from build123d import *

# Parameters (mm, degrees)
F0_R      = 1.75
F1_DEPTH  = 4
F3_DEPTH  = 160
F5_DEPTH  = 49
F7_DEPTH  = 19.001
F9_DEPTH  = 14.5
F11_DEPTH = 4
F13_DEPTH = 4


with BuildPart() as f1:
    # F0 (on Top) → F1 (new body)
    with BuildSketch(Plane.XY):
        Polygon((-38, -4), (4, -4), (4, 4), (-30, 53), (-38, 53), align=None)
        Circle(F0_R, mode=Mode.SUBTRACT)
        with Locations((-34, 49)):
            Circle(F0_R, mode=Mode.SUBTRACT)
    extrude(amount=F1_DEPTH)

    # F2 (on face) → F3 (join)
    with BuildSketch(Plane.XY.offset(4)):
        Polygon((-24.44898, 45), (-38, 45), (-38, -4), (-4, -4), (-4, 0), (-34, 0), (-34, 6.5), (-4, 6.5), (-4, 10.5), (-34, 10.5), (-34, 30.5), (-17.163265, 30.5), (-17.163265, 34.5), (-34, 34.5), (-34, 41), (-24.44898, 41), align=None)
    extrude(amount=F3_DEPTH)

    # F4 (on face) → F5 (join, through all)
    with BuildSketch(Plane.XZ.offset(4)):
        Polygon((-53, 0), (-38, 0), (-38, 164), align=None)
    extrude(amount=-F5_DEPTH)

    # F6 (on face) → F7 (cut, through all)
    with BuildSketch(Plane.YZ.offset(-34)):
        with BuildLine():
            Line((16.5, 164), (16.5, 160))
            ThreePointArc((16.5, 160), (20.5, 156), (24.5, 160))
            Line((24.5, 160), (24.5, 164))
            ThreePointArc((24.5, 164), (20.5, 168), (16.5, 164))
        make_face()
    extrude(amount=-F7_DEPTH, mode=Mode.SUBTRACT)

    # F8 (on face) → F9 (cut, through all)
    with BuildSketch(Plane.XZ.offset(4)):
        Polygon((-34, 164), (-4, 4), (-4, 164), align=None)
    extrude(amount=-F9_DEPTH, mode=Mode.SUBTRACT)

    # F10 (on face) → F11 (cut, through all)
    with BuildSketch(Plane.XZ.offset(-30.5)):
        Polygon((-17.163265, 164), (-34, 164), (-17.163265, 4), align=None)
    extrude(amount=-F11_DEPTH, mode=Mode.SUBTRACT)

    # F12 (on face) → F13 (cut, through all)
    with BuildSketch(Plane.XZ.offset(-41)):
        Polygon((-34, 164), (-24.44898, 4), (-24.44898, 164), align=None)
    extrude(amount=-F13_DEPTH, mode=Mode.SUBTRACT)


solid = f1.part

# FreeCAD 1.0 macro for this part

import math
import FreeCAD as App
import Part
import Sketcher
Q = App.Units.Quantity

doc = App.newDocument("Part")
body = doc.addObject("PartDesign::Body", "Body")

# Sketch on XY plane
sketch1 = body.newObject("Sketcher::SketchObject", "Sketch")
sketch1.AttachmentSupport = (doc.getObject("XY_Plane"), [""])
sketch1.MapMode = "FlatFace"
sketch1.addGeometry([
    Part.LineSegment(App.Vector(-38, -4, 0), App.Vector(4, -4, 0)),  # 0
    Part.LineSegment(App.Vector(4, -4, 0), App.Vector(4, 4, 0)),  # 1
    Part.LineSegment(App.Vector(4, 4, 0), App.Vector(-30, 53, 0)),  # 2
    Part.LineSegment(App.Vector(-30, 53, 0), App.Vector(-38, 53, 0)),  # 3
    Part.LineSegment(App.Vector(-38, 53, 0), App.Vector(-38, -4, 0)),  # 4
    Part.Circle(App.Vector(0, 0, 0), App.Vector(0, 0, 1), 1.8),  # 5
    Part.Circle(App.Vector(-34, 49, 0), App.Vector(0, 0, 1), 1.8),  # 6
], False)
sketch1.addConstraint([
    Sketcher.Constraint("Coincident", 0, 2, 1, 1),
    Sketcher.Constraint("Coincident", 1, 2, 2, 1),
    Sketcher.Constraint("Coincident", 2, 2, 3, 1),
    Sketcher.Constraint("Coincident", 3, 2, 4, 1),
    Sketcher.Constraint("Coincident", 4, 2, 0, 1),
    Sketcher.Constraint("Horizontal", 0),
    Sketcher.Constraint("Vertical", 1),
    Sketcher.Constraint("Horizontal", 3),
    Sketcher.Constraint("Vertical", 4),
    Sketcher.Constraint("Coincident", 5, 3, -1, 1),
    Sketcher.Constraint("Equal", 5, 6),
    Sketcher.Constraint("Equal", 3, 1),
    Sketcher.Constraint("Diameter", 5, Q("3.5 mm")),
    Sketcher.Constraint("DistanceX", 0, 1, 0, 2, Q("42 mm")),
    Sketcher.Constraint("DistanceX", 3, 2, 3, 1, Q("8 mm")),
    Sketcher.Constraint("DistanceY", 4, 2, 4, 1, Q("57 mm")),
    Sketcher.Constraint("DistanceX", 6, 3, -1, 1, Q("34 mm")),
    Sketcher.Constraint("DistanceY", -1, 1, 6, 3, Q("49 mm")),
    Sketcher.Constraint("DistanceX", -1, 1, 0, 2, Q("4 mm")),
    Sketcher.Constraint("DistanceY", 0, 2, -1, 1, Q("4 mm")),
])
pad1 = body.newObject("PartDesign::Pad", "Pad")
pad1.Profile = sketch1
pad1.Length = 4

# Sketch on XY plane
sketch2 = body.newObject("Sketcher::SketchObject", "Sketch001")
sketch2.AttachmentSupport = (doc.getObject("XY_Plane"), [""])
sketch2.MapMode = "FlatFace"
sketch2.AttachmentOffset = App.Placement(App.Vector(0, 0, 4), App.Rotation())
sketch2.addGeometry([
    Part.LineSegment(App.Vector(-24.4, 45, 0), App.Vector(-38, 45, 0)),  # 0
    Part.LineSegment(App.Vector(-38, 45, 0), App.Vector(-38, -4, 0)),  # 1
    Part.LineSegment(App.Vector(-38, -4, 0), App.Vector(-4, -4, 0)),  # 2
    Part.LineSegment(App.Vector(-4, -4, 0), App.Vector(-4, 0, 0)),  # 3
    Part.LineSegment(App.Vector(-4, 0, 0), App.Vector(-34, 0, 0)),  # 4
    Part.LineSegment(App.Vector(-34, 0, 0), App.Vector(-34, 6.5, 0)),  # 5
    Part.LineSegment(App.Vector(-34, 6.5, 0), App.Vector(-4, 6.5, 0)),  # 6
    Part.LineSegment(App.Vector(-4, 6.5, 0), App.Vector(-4, 10.5, 0)),  # 7
    Part.LineSegment(App.Vector(-4, 10.5, 0), App.Vector(-34, 10.5, 0)),  # 8
    Part.LineSegment(App.Vector(-34, 10.5, 0), App.Vector(-34, 30.5, 0)),  # 9
    Part.LineSegment(App.Vector(-34, 30.5, 0), App.Vector(-17.2, 30.5, 0)),  # 10
    Part.LineSegment(App.Vector(-17.2, 30.5, 0), App.Vector(-17.2, 34.5, 0)),  # 11
    Part.LineSegment(App.Vector(-17.2, 34.5, 0), App.Vector(-34, 34.5, 0)),  # 12
    Part.LineSegment(App.Vector(-34, 34.5, 0), App.Vector(-34, 41, 0)),  # 13
    Part.LineSegment(App.Vector(-34, 41, 0), App.Vector(-24.4, 41, 0)),  # 14
    Part.LineSegment(App.Vector(-24.4, 41, 0), App.Vector(-24.4, 45, 0)),  # 15
], False)
sketch2.addConstraint([
    Sketcher.Constraint("Coincident", 0, 2, 1, 1),
    Sketcher.Constraint("Coincident", 1, 2, 2, 1),
    Sketcher.Constraint("Coincident", 2, 2, 3, 1),
    Sketcher.Constraint("Coincident", 3, 2, 4, 1),
    Sketcher.Constraint("Coincident", 4, 2, 5, 1),
    Sketcher.Constraint("Coincident", 5, 2, 6, 1),
    Sketcher.Constraint("Coincident", 6, 2, 7, 1),
    Sketcher.Constraint("Coincident", 7, 2, 8, 1),
    Sketcher.Constraint("Coincident", 8, 2, 9, 1),
    Sketcher.Constraint("Coincident", 9, 2, 10, 1),
    Sketcher.Constraint("Coincident", 10, 2, 11, 1),
    Sketcher.Constraint("Coincident", 11, 2, 12, 1),
    Sketcher.Constraint("Coincident", 12, 2, 13, 1),
    Sketcher.Constraint("Coincident", 13, 2, 14, 1),
    Sketcher.Constraint("Coincident", 14, 2, 15, 1),
    Sketcher.Constraint("Coincident", 15, 2, 0, 1),
    Sketcher.Constraint("Horizontal", 0),
    Sketcher.Constraint("Vertical", 1),
    Sketcher.Constraint("Horizontal", 2),
    Sketcher.Constraint("Vertical", 3),
    Sketcher.Constraint("Horizontal", 4),
    Sketcher.Constraint("Vertical", 5),
    Sketcher.Constraint("Horizontal", 6),
    Sketcher.Constraint("Vertical", 7),
    Sketcher.Constraint("Horizontal", 8),
    Sketcher.Constraint("Vertical", 9),
    Sketcher.Constraint("Horizontal", 10),
    Sketcher.Constraint("Vertical", 11),
    Sketcher.Constraint("Horizontal", 12),
    Sketcher.Constraint("Vertical", 13),
    Sketcher.Constraint("Horizontal", 14),
    Sketcher.Constraint("Vertical", 15),
    Sketcher.Constraint("PointOnObject", 3, 2, -1),
    Sketcher.Constraint("Vertical", 3, 2, 6, 2),
    Sketcher.Constraint("Vertical", 5, 2, 8, 2),
    Sketcher.Constraint("Vertical", 9, 2, 12, 2),
    Sketcher.Constraint("Equal", 3, 7),
    Sketcher.Constraint("Equal", 7, 11),
    Sketcher.Constraint("Equal", 5, 13),
    Sketcher.Constraint("Equal", 11, 15),
    Sketcher.Constraint("DistanceX", 2, 1, 2, 2, Q("34 mm")),
    Sketcher.Constraint("DistanceX", 4, 2, 4, 1, Q("30 mm")),
    Sketcher.Constraint("DistanceY", 1, 2, 1, 1, Q("49 mm")),
    Sketcher.Constraint("DistanceY", 3, 1, 3, 2, Q("4 mm")),
    Sketcher.Constraint("DistanceY", 9, 1, 9, 2, Q("20 mm")),
    Sketcher.Constraint("DistanceX", 0, 2, -1, 1, Q("38 mm")),
    Sketcher.Constraint("DistanceX", 0, 2, 0, 1, Q("13.55102 mm")),
    Sketcher.Constraint("DistanceX", 10, 1, 10, 2, Q("16.836735 mm")),
])
pad2 = body.newObject("PartDesign::Pad", "Pad001")
pad2.Profile = sketch2
pad2.Length = 160

# Sketch on XZ plane
sketch3 = body.newObject("Sketcher::SketchObject", "Sketch002")
sketch3.AttachmentSupport = (doc.getObject("XZ_Plane"), [""])
sketch3.MapMode = "FlatFace"
sketch3.AttachmentOffset = App.Placement(App.Vector(0, 0, 4), App.Rotation())
sketch3.addGeometry([
    Part.LineSegment(App.Vector(-53, 0, 0), App.Vector(-38, 0, 0)),
    Part.LineSegment(App.Vector(-38, 0, 0), App.Vector(-38, 164, 0)),
    Part.LineSegment(App.Vector(-38, 164, 0), App.Vector(-53, 0, 0)),
], False)
sketch3.addConstraint([
    Sketcher.Constraint("Coincident", 0, 2, 1, 1),
    Sketcher.Constraint("Coincident", 1, 2, 2, 1),
    Sketcher.Constraint("Coincident", 2, 2, 0, 1),
    Sketcher.Constraint("Horizontal", 0),
    Sketcher.Constraint("Vertical", 1),
    Sketcher.Constraint("PointOnObject", 0, 2, -1),
    Sketcher.Constraint("DistanceX", 0, 1, 0, 2, Q("15 mm")),
    Sketcher.Constraint("DistanceY", 1, 1, 1, 2, Q("164 mm")),
    Sketcher.Constraint("DistanceX", 0, 2, -1, 1, Q("38 mm")),
])
pad3 = body.newObject("PartDesign::Pad", "Pad002")
pad3.Profile = sketch3
pad3.Length = 49
pad3.Reversed = True

# Sketch on YZ plane
sketch4 = body.newObject("Sketcher::SketchObject", "Sketch003")
sketch4.AttachmentSupport = (doc.getObject("YZ_Plane"), [""])
sketch4.MapMode = "FlatFace"
sketch4.AttachmentOffset = App.Placement(App.Vector(0, 0, -34), App.Rotation())
sketch4.addGeometry([
    Part.LineSegment(App.Vector(16.5, 164, 0), App.Vector(16.5, 160, 0)),
    Part.ArcOfCircle(Part.Circle(App.Vector(20.5, 160, 0), App.Vector(0, 0, 1), 4), math.radians(180), math.radians(360)),
    Part.LineSegment(App.Vector(24.5, 160, 0), App.Vector(24.5, 164, 0)),
    Part.ArcOfCircle(Part.Circle(App.Vector(20.5, 164, 0), App.Vector(0, 0, 1), 4), math.radians(0), math.radians(180)),
], False)
sketch4.addConstraint([
    Sketcher.Constraint("Tangent", 0, 2, 1, 1),
    Sketcher.Constraint("Tangent", 1, 2, 2, 1),
    Sketcher.Constraint("Tangent", 2, 2, 3, 1),
    Sketcher.Constraint("Tangent", 3, 2, 0, 1),
    Sketcher.Constraint("Vertical", 0),
    Sketcher.Constraint("Vertical", 2),
    Sketcher.Constraint("Radius", 1, Q("4 mm")),
    Sketcher.Constraint("DistanceY", 0, 2, 0, 1, Q("4 mm")),
    Sketcher.Constraint("DistanceY", -1, 1, 1, 3, Q("160 mm")),
    Sketcher.Constraint("DistanceX", -1, 1, 1, 3, Q("20.5 mm")),
])
pocket1 = body.newObject("PartDesign::Pocket", "Pocket")
pocket1.Profile = sketch4
pocket1.Type = "ThroughAll"

# Sketch on XZ plane
sketch5 = body.newObject("Sketcher::SketchObject", "Sketch004")
sketch5.AttachmentSupport = (doc.getObject("XZ_Plane"), [""])
sketch5.MapMode = "FlatFace"
sketch5.AttachmentOffset = App.Placement(App.Vector(0, 0, 4), App.Rotation())
sketch5.addGeometry([
    Part.LineSegment(App.Vector(-34, 164, 0), App.Vector(-4, 4, 0)),
    Part.LineSegment(App.Vector(-4, 4, 0), App.Vector(-4, 164, 0)),
    Part.LineSegment(App.Vector(-4, 164, 0), App.Vector(-34, 164, 0)),
], False)
sketch5.addConstraint([
    Sketcher.Constraint("Coincident", 0, 2, 1, 1),
    Sketcher.Constraint("Coincident", 1, 2, 2, 1),
    Sketcher.Constraint("Coincident", 2, 2, 0, 1),
    Sketcher.Constraint("Vertical", 1),
    Sketcher.Constraint("Horizontal", 2),
    Sketcher.Constraint("DistanceX", 2, 2, 2, 1, Q("30 mm")),
    Sketcher.Constraint("DistanceY", 1, 1, 1, 2, Q("160 mm")),
    Sketcher.Constraint("DistanceX", 0, 2, -1, 1, Q("4 mm")),
    Sketcher.Constraint("DistanceY", -1, 1, 0, 2, Q("4 mm")),
])
pocket2 = body.newObject("PartDesign::Pocket", "Pocket001")
pocket2.Profile = sketch5
pocket2.Length = 14.5

# Sketch on XZ plane
sketch6 = body.newObject("Sketcher::SketchObject", "Sketch005")
sketch6.AttachmentSupport = (doc.getObject("XZ_Plane"), [""])
sketch6.MapMode = "FlatFace"
sketch6.AttachmentOffset = App.Placement(App.Vector(0, 0, -30.5), App.Rotation())
sketch6.addGeometry([
    Part.LineSegment(App.Vector(-17, 164, 0), App.Vector(-34, 164, 0)),
    Part.LineSegment(App.Vector(-34, 164, 0), App.Vector(-17, 4, 0)),
    Part.LineSegment(App.Vector(-17, 4, 0), App.Vector(-17, 164, 0)),
], False)
sketch6.addConstraint([
    Sketcher.Constraint("Coincident", 0, 2, 1, 1),
    Sketcher.Constraint("Coincident", 1, 2, 2, 1),
    Sketcher.Constraint("Coincident", 2, 2, 0, 1),
    Sketcher.Constraint("Horizontal", 0),
    Sketcher.Constraint("Vertical", 2),
    Sketcher.Constraint("DistanceY", 2, 1, 2, 2, Q("160 mm")),
    Sketcher.Constraint("DistanceX", 0, 2, -1, 1, Q("34 mm")),
    Sketcher.Constraint("DistanceY", -1, 1, 0, 2, Q("164 mm")),
    Sketcher.Constraint("DistanceX", 0, 2, 0, 1, Q("16.836735 mm")),
])
pocket3 = body.newObject("PartDesign::Pocket", "Pocket002")
pocket3.Profile = sketch6
pocket3.Length = 4

# Sketch on XZ plane
sketch7 = body.newObject("Sketcher::SketchObject", "Sketch006")
sketch7.AttachmentSupport = (doc.getObject("XZ_Plane"), [""])
sketch7.MapMode = "FlatFace"
sketch7.AttachmentOffset = App.Placement(App.Vector(0, 0, -41), App.Rotation())
sketch7.addGeometry([
    Part.LineSegment(App.Vector(-34, 164, 0), App.Vector(-24, 4, 0)),
    Part.LineSegment(App.Vector(-24, 4, 0), App.Vector(-24, 164, 0)),
    Part.LineSegment(App.Vector(-24, 164, 0), App.Vector(-34, 164, 0)),
], False)
sketch7.addConstraint([
    Sketcher.Constraint("Coincident", 0, 2, 1, 1),
    Sketcher.Constraint("Coincident", 1, 2, 2, 1),
    Sketcher.Constraint("Coincident", 2, 2, 0, 1),
    Sketcher.Constraint("Vertical", 1),
    Sketcher.Constraint("Horizontal", 2),
    Sketcher.Constraint("DistanceY", 1, 1, 1, 2, Q("160 mm")),
    Sketcher.Constraint("DistanceY", -1, 1, 0, 2, Q("4 mm")),
    Sketcher.Constraint("DistanceX", 2, 2, -1, 1, Q("34 mm")),
    Sketcher.Constraint("DistanceX", 2, 2, 2, 1, Q("9.55102 mm")),
])
pocket4 = body.newObject("PartDesign::Pocket", "Pocket003")
pocket4.Profile = sketch7
pocket4.Type = "ThroughAll"

doc.recompute()
